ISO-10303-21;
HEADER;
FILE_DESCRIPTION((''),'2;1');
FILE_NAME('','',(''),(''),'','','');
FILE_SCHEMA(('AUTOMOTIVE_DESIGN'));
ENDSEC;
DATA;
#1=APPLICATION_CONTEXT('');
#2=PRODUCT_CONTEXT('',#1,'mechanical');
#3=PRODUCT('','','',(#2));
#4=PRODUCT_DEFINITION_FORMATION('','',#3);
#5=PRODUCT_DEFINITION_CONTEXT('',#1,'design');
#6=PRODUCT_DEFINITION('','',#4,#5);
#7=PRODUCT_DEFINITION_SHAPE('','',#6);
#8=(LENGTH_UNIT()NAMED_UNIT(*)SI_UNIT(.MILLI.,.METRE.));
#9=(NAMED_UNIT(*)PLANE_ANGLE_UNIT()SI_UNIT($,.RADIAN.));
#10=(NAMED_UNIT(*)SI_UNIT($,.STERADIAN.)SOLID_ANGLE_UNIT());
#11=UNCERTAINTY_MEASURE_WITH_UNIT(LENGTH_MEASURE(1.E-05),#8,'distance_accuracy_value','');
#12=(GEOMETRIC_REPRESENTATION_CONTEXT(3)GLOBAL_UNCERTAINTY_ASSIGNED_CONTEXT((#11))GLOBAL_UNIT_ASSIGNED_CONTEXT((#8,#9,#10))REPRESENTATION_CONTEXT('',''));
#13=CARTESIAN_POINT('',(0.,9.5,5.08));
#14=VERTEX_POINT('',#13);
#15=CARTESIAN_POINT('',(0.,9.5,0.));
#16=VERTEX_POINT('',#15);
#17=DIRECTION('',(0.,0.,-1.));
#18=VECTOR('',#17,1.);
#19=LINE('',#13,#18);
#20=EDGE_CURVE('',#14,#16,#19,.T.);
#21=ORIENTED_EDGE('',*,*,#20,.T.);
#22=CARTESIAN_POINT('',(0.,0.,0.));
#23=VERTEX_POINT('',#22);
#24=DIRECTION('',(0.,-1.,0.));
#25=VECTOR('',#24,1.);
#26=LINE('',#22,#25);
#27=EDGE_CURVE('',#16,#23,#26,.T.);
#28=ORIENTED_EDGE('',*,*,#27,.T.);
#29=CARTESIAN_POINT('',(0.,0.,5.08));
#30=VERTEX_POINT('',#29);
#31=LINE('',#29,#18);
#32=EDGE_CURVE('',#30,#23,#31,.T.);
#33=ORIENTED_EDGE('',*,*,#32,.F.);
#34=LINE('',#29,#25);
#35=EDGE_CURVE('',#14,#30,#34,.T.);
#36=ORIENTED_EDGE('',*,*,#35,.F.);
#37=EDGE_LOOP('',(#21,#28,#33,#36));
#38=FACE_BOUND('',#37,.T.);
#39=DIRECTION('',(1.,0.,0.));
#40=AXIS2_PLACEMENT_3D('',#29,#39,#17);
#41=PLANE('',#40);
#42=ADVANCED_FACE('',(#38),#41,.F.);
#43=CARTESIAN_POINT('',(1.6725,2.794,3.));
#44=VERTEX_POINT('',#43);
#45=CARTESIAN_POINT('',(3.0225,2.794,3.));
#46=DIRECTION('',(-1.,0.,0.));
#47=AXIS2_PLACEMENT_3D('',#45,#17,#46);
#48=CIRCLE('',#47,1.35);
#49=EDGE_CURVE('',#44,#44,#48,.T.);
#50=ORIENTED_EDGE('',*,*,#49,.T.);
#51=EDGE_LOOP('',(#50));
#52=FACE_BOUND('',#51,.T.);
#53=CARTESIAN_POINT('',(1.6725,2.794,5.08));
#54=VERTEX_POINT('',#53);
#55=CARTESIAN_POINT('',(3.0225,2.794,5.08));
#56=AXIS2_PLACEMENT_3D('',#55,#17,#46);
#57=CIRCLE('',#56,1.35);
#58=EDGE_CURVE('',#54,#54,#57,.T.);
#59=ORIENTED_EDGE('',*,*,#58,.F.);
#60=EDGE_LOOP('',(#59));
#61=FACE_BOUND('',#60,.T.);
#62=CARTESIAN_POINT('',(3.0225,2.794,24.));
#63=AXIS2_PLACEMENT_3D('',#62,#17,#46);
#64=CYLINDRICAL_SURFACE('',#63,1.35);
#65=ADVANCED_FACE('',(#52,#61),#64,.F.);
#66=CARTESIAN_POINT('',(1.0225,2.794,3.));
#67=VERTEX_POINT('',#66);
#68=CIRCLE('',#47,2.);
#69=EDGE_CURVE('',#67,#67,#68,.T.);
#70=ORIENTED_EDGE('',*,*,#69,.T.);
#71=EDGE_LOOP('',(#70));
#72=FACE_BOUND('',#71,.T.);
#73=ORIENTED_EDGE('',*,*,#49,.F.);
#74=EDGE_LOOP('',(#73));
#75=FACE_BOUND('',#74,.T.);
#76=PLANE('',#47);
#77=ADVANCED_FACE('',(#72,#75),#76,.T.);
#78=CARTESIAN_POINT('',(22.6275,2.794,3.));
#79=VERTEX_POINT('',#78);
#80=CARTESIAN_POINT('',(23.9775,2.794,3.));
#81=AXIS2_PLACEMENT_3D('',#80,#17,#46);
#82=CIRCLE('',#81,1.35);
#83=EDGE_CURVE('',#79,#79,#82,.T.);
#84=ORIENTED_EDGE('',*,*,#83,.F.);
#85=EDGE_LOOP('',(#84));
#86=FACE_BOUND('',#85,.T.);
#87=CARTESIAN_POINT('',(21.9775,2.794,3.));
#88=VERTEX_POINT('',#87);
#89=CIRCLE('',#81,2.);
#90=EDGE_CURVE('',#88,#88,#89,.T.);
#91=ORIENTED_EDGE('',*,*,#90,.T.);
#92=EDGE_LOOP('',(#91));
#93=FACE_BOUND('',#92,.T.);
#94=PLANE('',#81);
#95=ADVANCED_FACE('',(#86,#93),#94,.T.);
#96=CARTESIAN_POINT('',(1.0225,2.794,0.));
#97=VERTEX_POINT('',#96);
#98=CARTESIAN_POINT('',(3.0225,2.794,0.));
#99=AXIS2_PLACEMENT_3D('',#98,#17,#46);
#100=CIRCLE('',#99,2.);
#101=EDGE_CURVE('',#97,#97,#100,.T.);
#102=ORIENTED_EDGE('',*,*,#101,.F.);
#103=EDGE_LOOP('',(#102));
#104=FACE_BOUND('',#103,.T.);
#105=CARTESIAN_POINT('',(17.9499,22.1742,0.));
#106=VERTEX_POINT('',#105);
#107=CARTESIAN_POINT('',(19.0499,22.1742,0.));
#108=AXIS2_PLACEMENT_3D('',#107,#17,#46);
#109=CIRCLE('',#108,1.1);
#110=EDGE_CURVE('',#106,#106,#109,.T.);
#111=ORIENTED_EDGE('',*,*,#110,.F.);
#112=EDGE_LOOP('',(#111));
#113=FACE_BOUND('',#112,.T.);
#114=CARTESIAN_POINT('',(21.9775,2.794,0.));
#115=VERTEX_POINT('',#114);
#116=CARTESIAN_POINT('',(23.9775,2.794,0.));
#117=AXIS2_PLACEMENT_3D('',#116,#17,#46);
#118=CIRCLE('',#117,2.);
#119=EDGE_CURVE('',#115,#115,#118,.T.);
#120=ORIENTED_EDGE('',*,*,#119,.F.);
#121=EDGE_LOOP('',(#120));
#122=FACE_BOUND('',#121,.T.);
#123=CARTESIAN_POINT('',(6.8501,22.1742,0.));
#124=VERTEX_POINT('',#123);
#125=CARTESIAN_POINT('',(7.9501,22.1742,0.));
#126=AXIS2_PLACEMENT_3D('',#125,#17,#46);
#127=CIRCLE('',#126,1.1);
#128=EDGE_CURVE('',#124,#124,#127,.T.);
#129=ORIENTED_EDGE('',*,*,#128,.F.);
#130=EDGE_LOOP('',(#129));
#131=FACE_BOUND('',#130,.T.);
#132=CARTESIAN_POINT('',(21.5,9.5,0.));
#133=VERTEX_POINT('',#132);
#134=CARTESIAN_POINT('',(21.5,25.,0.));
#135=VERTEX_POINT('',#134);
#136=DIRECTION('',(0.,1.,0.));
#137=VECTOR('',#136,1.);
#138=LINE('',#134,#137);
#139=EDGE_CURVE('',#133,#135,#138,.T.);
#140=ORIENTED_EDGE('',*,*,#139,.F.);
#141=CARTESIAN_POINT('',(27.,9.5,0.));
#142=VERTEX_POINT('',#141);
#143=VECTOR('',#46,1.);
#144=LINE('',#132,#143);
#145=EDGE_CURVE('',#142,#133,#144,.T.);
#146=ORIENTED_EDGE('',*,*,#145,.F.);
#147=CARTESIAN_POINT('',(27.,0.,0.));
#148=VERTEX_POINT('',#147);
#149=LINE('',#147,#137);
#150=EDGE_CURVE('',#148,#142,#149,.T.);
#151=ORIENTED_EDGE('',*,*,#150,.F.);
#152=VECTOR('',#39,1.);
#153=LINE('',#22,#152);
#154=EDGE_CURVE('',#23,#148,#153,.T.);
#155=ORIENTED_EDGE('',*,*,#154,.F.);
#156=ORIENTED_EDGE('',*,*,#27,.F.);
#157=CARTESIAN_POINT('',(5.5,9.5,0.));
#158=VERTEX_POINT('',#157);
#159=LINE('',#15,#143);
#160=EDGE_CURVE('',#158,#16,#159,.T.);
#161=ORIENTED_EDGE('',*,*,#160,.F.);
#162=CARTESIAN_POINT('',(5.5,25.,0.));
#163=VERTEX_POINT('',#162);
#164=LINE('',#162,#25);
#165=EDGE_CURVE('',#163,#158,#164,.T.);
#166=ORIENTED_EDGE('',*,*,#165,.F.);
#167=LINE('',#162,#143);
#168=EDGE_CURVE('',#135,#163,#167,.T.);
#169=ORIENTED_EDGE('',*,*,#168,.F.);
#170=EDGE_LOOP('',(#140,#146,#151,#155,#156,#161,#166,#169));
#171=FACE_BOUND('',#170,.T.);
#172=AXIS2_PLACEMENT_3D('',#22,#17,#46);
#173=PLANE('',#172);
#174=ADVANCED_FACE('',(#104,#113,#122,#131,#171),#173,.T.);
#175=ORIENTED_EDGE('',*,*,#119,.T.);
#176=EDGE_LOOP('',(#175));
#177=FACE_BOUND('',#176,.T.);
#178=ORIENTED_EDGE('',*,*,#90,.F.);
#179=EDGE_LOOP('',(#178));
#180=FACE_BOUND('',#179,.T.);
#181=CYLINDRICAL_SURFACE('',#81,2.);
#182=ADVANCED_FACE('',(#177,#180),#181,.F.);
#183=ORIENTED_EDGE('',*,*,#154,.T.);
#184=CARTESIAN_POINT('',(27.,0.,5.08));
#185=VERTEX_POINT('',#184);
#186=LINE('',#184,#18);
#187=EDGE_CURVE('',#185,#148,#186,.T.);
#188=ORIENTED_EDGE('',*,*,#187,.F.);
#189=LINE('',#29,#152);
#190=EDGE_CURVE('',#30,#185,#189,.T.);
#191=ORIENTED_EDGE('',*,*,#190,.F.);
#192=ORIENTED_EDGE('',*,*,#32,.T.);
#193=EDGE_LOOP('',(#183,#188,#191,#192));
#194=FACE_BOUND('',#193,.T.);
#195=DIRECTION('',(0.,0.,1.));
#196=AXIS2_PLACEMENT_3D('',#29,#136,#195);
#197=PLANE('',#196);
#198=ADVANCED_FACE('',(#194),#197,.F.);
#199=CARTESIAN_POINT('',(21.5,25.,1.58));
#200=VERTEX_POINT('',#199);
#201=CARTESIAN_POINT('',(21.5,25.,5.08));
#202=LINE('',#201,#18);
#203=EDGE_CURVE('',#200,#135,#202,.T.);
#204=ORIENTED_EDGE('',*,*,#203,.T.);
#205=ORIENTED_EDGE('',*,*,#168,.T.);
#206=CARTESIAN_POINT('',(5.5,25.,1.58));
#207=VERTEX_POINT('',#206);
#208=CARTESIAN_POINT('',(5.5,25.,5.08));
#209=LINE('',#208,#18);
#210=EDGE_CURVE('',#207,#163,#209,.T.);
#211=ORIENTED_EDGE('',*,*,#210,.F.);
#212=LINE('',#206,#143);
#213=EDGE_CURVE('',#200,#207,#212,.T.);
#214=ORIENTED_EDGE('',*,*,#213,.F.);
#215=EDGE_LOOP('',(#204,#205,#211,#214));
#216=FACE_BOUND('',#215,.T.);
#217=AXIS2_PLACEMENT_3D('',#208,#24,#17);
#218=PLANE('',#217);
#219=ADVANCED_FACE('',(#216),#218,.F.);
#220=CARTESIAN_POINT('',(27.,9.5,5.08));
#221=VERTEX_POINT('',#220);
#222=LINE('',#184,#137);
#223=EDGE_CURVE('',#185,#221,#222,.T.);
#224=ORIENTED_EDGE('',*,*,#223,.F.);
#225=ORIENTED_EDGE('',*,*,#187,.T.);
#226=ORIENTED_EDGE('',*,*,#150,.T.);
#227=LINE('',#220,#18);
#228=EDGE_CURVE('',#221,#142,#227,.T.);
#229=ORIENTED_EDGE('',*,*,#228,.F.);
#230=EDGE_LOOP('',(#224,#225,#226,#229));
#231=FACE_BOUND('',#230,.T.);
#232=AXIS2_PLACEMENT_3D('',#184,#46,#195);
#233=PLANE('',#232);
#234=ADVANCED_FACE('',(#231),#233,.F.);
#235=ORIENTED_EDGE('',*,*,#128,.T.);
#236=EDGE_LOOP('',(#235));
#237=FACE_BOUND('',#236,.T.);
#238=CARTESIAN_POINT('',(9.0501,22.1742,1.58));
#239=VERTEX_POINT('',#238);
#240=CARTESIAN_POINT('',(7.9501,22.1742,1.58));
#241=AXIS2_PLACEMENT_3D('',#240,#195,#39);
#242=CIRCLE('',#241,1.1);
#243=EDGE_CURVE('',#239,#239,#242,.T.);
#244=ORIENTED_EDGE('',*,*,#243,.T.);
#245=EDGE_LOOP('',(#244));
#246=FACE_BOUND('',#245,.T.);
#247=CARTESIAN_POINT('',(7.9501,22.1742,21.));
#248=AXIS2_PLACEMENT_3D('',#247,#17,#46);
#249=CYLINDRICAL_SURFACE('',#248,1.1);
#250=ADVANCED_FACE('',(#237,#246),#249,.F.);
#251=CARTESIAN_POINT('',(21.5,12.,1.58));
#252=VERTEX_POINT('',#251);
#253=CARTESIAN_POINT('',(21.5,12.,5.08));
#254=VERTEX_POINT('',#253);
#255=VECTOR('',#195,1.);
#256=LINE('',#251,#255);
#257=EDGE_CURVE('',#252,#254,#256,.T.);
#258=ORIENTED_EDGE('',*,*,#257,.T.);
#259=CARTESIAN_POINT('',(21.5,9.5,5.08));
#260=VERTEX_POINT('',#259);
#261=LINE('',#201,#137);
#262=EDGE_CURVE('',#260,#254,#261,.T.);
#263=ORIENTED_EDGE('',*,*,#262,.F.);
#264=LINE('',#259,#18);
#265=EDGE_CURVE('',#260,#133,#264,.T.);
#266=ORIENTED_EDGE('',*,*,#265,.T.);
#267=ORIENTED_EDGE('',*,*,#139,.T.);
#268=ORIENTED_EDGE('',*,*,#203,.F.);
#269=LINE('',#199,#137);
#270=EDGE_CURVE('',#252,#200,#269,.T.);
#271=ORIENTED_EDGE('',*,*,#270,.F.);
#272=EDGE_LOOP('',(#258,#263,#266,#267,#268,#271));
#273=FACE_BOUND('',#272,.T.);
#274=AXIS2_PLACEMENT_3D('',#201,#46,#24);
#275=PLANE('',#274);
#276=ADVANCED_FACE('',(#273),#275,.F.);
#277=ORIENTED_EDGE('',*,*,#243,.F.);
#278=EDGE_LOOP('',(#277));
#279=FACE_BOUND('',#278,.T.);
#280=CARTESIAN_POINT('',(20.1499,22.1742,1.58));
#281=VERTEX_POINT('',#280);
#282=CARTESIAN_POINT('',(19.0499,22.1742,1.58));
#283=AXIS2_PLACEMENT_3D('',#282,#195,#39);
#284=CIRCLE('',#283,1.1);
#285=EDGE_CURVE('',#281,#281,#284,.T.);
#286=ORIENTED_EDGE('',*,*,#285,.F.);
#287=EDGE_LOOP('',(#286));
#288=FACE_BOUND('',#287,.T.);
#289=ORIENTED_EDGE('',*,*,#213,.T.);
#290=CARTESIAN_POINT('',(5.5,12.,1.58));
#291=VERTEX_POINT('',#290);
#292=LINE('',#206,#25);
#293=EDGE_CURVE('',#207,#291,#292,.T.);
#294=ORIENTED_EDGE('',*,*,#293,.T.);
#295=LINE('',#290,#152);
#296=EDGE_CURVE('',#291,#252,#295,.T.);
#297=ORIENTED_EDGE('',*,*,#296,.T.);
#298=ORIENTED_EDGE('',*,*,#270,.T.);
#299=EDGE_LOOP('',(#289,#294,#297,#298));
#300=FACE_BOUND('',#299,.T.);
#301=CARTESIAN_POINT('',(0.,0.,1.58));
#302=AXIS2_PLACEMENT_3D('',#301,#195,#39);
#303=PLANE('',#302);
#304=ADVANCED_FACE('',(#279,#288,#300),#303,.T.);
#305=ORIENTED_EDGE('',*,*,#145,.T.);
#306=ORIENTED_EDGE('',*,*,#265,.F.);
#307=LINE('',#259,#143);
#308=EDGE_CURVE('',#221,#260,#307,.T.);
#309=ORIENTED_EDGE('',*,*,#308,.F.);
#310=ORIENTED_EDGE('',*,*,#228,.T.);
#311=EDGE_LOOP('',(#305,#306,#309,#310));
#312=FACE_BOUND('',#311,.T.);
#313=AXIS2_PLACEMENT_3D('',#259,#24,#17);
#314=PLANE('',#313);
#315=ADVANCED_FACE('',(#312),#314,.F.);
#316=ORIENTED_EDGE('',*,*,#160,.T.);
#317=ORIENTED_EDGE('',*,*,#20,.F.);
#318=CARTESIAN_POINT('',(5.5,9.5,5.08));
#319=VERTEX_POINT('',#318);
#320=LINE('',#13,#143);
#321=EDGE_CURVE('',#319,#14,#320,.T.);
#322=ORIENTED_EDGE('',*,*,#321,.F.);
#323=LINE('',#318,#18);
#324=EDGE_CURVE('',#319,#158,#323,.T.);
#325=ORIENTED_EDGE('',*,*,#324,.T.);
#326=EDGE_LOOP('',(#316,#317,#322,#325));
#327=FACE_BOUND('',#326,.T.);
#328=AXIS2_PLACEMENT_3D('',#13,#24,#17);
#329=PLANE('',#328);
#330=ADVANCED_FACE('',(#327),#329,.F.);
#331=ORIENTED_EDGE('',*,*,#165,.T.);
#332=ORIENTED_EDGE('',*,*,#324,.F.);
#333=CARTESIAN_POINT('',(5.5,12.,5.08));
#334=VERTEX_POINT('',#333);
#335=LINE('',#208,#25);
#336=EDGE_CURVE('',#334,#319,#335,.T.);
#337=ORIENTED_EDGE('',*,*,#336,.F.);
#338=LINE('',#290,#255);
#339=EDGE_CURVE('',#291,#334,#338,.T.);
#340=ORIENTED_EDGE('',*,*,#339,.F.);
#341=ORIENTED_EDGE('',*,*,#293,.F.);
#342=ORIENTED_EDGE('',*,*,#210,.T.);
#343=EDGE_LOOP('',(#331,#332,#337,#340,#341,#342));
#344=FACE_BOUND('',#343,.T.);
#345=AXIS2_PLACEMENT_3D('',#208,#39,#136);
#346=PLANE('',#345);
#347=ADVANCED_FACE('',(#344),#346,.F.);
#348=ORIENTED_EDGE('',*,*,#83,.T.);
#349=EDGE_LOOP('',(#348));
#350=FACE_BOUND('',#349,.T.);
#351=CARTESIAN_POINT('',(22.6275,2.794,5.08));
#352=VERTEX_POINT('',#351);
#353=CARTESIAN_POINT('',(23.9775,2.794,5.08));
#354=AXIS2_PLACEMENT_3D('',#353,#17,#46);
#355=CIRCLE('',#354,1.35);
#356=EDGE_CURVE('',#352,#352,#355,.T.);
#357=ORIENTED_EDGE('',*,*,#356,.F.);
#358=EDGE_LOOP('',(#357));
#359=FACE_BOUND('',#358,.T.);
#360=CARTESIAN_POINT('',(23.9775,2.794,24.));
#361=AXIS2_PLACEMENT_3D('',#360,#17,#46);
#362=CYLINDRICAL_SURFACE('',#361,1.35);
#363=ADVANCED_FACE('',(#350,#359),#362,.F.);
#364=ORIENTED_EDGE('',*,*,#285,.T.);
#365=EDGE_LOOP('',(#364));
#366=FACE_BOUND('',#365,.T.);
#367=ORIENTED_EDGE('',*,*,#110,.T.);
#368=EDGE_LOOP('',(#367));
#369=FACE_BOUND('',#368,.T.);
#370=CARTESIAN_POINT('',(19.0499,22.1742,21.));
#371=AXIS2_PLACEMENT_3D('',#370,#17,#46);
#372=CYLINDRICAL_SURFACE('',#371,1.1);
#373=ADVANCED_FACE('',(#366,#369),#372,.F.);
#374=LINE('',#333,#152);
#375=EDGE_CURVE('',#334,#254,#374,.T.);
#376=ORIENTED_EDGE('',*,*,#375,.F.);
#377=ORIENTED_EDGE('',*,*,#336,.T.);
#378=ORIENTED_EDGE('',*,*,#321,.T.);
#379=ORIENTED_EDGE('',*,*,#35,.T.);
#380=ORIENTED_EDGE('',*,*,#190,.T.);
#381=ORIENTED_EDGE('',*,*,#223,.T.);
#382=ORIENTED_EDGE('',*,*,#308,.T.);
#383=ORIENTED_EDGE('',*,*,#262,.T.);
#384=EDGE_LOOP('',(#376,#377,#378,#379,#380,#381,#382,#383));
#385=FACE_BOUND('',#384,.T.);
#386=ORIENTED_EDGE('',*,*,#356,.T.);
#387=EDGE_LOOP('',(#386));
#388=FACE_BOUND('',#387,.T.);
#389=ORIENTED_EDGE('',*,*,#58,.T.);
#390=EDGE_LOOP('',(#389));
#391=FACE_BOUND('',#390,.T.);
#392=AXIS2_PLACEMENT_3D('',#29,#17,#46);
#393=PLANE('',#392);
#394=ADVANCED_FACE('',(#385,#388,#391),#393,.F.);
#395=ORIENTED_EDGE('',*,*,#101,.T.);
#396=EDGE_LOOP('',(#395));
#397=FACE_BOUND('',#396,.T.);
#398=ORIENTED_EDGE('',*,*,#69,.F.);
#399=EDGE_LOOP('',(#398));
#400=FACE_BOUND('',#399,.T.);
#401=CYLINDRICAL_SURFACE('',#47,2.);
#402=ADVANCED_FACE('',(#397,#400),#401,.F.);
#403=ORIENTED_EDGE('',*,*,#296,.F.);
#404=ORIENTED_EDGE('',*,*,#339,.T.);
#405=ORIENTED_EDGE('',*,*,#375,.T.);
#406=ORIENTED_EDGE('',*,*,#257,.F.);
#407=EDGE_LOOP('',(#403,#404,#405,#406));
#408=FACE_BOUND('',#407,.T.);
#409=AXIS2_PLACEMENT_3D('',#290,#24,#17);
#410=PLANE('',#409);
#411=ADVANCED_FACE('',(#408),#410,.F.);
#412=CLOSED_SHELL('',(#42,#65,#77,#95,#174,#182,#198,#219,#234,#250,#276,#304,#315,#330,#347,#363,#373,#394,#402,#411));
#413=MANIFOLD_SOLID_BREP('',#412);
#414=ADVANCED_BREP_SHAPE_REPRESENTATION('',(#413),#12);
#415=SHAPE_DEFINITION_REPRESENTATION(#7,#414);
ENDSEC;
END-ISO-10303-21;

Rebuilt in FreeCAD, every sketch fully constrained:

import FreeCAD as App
import Part
import Sketcher

doc = App.newDocument("Part")
params = doc.addObject("Spreadsheet::Sheet", "Params")
for row, (alias, value) in enumerate([
    ("sketch1_width", "27 mm"),
    ("sketch1_width2", "16 mm"),
    ("sketch1_height", "9.5 mm"),
    ("sketch1_height2", "15.5 mm"),
    ("pad1_length", "5.08 mm"),
    ("sketch2_width", "16 mm"),
    ("sketch2_height", "13 mm"),
    ("pocket1_length", "3.5 mm"),
    ("sketch3_diameter", "4 mm"),
    ("pocket2_length", "3 mm"),
    ("sketch4_diameter", "2.2 mm"),
    ("pocket3_length", "21 mm"),
    ("sketch5_diameter", "2.7 mm"),
    ("pocket4_length", "21 mm"),
], start=1):
    params.set(f"A{row}", alias)
    params.set(f"B{row}", "=" + value)
    params.setAlias(f"B{row}", alias)

body = doc.addObject("PartDesign::Body", "Body")

# Sketch on XY plane
sketch1 = body.newObject("Sketcher::SketchObject", "Sketch")
sketch1.AttachmentSupport = (doc.getObject("XY_Plane"), [""])
sketch1.MapMode = "FlatFace"
sketch1.addGeometry([
    Part.LineSegment(App.Vector(6, 10, 0), App.Vector(0, 10, 0)),  # 0
    Part.LineSegment(App.Vector(0, 10, 0), App.Vector(0, 0, 0)),  # 1
    Part.LineSegment(App.Vector(0, 0, 0), App.Vector(27, 0, 0)),  # 2
    Part.LineSegment(App.Vector(27, 0, 0), App.Vector(27, 10, 0)),  # 3
    Part.LineSegment(App.Vector(27, 10, 0), App.Vector(22, 10, 0)),  # 4
    Part.LineSegment(App.Vector(22, 10, 0), App.Vector(22, 25, 0)),  # 5
    Part.LineSegment(App.Vector(22, 25, 0), App.Vector(6, 25, 0)),  # 6
    Part.LineSegment(App.Vector(6, 25, 0), App.Vector(6, 10, 0)),  # 7
], False)
sketch1.addConstraint([
    Sketcher.Constraint("Coincident", 0, 2, 1, 1),
    Sketcher.Constraint("Coincident", 1, 2, 2, 1),
    Sketcher.Constraint("Coincident", 2, 2, 3, 1),
    Sketcher.Constraint("Coincident", 3, 2, 4, 1),
    Sketcher.Constraint("Coincident", 4, 2, 5, 1),
    Sketcher.Constraint("Coincident", 5, 2, 6, 1),
    Sketcher.Constraint("Coincident", 6, 2, 7, 1),
    Sketcher.Constraint("Coincident", 7, 2, 0, 1),
    Sketcher.Constraint("Horizontal", 0),
    Sketcher.Constraint("Vertical", 1),
    Sketcher.Constraint("Horizontal", 2),
    Sketcher.Constraint("Vertical", 3),
    Sketcher.Constraint("Horizontal", 4),
    Sketcher.Constraint("Vertical", 5),
    Sketcher.Constraint("Horizontal", 6),
    Sketcher.Constraint("Vertical", 7),
    Sketcher.Constraint("Coincident", 1, 2, -1, 1),
    Sketcher.Constraint("Horizontal", 0, 2, 3, 2),
    Sketcher.Constraint("Equal", 0, 4),
    Sketcher.Constraint("DistanceX", 2, 1, 2, 2, 27.0),
    Sketcher.Constraint("DistanceX", 6, 2, 6, 1, 16.0),
    Sketcher.Constraint("DistanceY", 1, 2, 1, 1, 9.5),
    Sketcher.Constraint("DistanceY", 5, 1, 5, 2, 15.5),
])
sketch1.setExpression("Constraints[19]", "Params.sketch1_width")
sketch1.setExpression("Constraints[20]", "Params.sketch1_width2")
sketch1.setExpression("Constraints[21]", "Params.sketch1_height")
sketch1.setExpression("Constraints[22]", "Params.sketch1_height2")
pad1 = body.newObject("PartDesign::Pad", "Pad")
pad1.Profile = sketch1
pad1.setExpression("Length", "Params.pad1_length")

# Sketch on XY plane
sketch2 = body.newObject("Sketcher::SketchObject", "Sketch001")
sketch2.AttachmentSupport = (doc.getObject("XY_Plane"), [""])
sketch2.MapMode = "FlatFace"
sketch2.AttachmentOffset = App.Placement(App.Vector(0, 0, 5.08), App.Rotation())
sketch2.addGeometry([
    Part.LineSegment(App.Vector(6, 25, 0), App.Vector(6, 12, 0)),
    Part.LineSegment(App.Vector(6, 12, 0), App.Vector(22, 12, 0)),
    Part.LineSegment(App.Vector(22, 12, 0), App.Vector(22, 25, 0)),
    Part.LineSegment(App.Vector(22, 25, 0), App.Vector(6, 25, 0)),
], False)
sketch2.addConstraint([
    Sketcher.Constraint("Coincident", 0, 2, 1, 1),
    Sketcher.Constraint("Coincident", 1, 2, 2, 1),
    Sketcher.Constraint("Coincident", 2, 2, 3, 1),
    Sketcher.Constraint("Coincident", 3, 2, 0, 1),
    Sketcher.Constraint("Vertical", 0),
    Sketcher.Constraint("Horizontal", 1),
    Sketcher.Constraint("Vertical", 2),
    Sketcher.Constraint("Horizontal", 3),
    Sketcher.Constraint("DistanceX", 1, 1, 1, 2, 16.0),
    Sketcher.Constraint("DistanceY", 0, 2, 0, 1, 13.0),
    Sketcher.Constraint("DistanceY", -1, 1, 0, 2, 12.0),
    Sketcher.Constraint("DistanceX", -1, 1, 0, 2, 5.5),
])
sketch2.setExpression("Constraints[8]", "Params.sketch2_width")
sketch2.setExpression("Constraints[9]", "Params.sketch2_height")
pocket1 = body.newObject("PartDesign::Pocket", "Pocket")
pocket1.Profile = sketch2
pocket1.setExpression("Length", "Params.pocket1_length")

# Sketch on XY plane
sketch3 = body.newObject("Sketcher::SketchObject", "Sketch002")
sketch3.AttachmentSupport = (doc.getObject("XY_Plane"), [""])
sketch3.MapMode = "FlatFace"
sketch3.addGeometry([
    Part.Circle(App.Vector(24, 2.8, 0), App.Vector(0, 0, 1), 2),
    Part.Circle(App.Vector(3, 2.8, 0), App.Vector(0, 0, 1), 2),
], False)
sketch3.addConstraint([
    Sketcher.Constraint("Equal", 0, 1),
    Sketcher.Constraint("Horizontal", 0, 3, 1, 3),
    Sketcher.Constraint("Diameter", 0, 4.0),
    Sketcher.Constraint("DistanceY", -1, 1, 0, 3, 2.794),
    Sketcher.Constraint("DistanceX", 1, 3, 0, 3, 20.955),
    Sketcher.Constraint("DistanceX", -1, 1, 0, 3, 23.9775),
])
sketch3.setExpression("Constraints[2]", "Params.sketch3_diameter")
pocket2 = body.newObject("PartDesign::Pocket", "Pocket001")
pocket2.Profile = sketch3
pocket2.setExpression("Length", "Params.pocket2_length")
pocket2.Reversed = True

# Sketch on XY plane
sketch4 = body.newObject("Sketcher::SketchObject", "Sketch003")
sketch4.AttachmentSupport = (doc.getObject("XY_Plane"), [""])
sketch4.MapMode = "FlatFace"
sketch4.addGeometry([
    Part.Circle(App.Vector(19, 22.2, 0), App.Vector(0, 0, 1), 1.1),
    Part.Circle(App.Vector(8, 22.2, 0), App.Vector(0, 0, 1), 1.1),
], False)
sketch4.addConstraint([
    Sketcher.Constraint("Equal", 0, 1),
    Sketcher.Constraint("Horizontal", 0, 3, 1, 3),
    Sketcher.Constraint("Diameter", 0, 2.2),
    Sketcher.Constraint("DistanceX", -1, 1, 0, 3, 19.0499),
    Sketcher.Constraint("DistanceY", -1, 1, 0, 3, 22.1742),
    Sketcher.Constraint("DistanceX", -1, 1, 1, 3, 7.9501),
])
sketch4.setExpression("Constraints[2]", "Params.sketch4_diameter")
pocket3 = body.newObject("PartDesign::Pocket", "Pocket002")
pocket3.Profile = sketch4
pocket3.setExpression("Length", "Params.pocket3_length")
pocket3.Reversed = True

# Sketch on XY plane
sketch5 = body.newObject("Sketcher::SketchObject", "Sketch004")
sketch5.AttachmentSupport = (doc.getObject("XY_Plane"), [""])
sketch5.MapMode = "FlatFace"
sketch5.AttachmentOffset = App.Placement(App.Vector(0, 0, 3), App.Rotation())
sketch5.addGeometry([
    Part.Circle(App.Vector(24, 2.8, 0), App.Vector(0, 0, 1), 1.4),
    Part.Circle(App.Vector(3, 2.8, 0), App.Vector(0, 0, 1), 1.4),
], False)
sketch5.addConstraint([
    Sketcher.Constraint("Equal", 0, 1),
    Sketcher.Constraint("Horizontal", 0, 3, 1, 3),
    Sketcher.Constraint("Diameter", 0, 2.7),
    Sketcher.Constraint("DistanceY", -1, 1, 0, 3, 2.794),
    Sketcher.Constraint("DistanceX", 1, 3, 0, 3, 20.955),
    Sketcher.Constraint("DistanceX", -1, 1, 0, 3, 23.9775),
])
sketch5.setExpression("Constraints[2]", "Params.sketch5_diameter")
pocket4 = body.newObject("PartDesign::Pocket", "Pocket003")
pocket4.Profile = sketch5
pocket4.setExpression("Length", "Params.pocket4_length")
pocket4.Reversed = True

doc.recompute()
